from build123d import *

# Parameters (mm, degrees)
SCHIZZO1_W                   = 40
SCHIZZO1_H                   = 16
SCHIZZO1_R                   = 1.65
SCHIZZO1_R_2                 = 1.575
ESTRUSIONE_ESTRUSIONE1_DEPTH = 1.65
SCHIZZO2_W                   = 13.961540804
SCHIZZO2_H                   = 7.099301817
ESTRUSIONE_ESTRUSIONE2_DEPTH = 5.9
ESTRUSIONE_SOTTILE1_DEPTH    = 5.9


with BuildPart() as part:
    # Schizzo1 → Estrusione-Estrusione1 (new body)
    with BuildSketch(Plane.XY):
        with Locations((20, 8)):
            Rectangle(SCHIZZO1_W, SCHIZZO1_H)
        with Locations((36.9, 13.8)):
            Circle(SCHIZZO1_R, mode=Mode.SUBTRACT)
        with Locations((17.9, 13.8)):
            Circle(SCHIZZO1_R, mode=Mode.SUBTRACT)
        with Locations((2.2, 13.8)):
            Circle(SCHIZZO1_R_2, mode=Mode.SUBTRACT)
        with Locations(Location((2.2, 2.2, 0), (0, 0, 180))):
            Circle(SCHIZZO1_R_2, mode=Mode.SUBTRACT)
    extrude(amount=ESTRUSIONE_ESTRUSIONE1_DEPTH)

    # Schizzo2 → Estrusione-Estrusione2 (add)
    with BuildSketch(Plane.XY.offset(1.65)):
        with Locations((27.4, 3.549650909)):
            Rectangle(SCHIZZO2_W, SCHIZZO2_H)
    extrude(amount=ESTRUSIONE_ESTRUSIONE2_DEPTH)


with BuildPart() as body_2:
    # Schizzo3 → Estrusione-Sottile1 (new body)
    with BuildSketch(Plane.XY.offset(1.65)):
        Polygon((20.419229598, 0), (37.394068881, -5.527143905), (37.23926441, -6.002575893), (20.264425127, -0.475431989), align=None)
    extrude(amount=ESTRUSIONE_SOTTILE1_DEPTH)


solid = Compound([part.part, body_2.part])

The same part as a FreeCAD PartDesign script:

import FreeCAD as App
import Part
import Sketcher

V = App.Vector
Q = App.Units.Quantity

doc = App.newDocument("Part")
params = doc.addObject("Spreadsheet::Sheet", "Params")
for row, (alias, value) in enumerate([
    ("sketch1_diameter", "3.3 mm"),
    ("sketch1_diameter2", "3.15 mm"),
    ("sketch1_width", "40 mm"),
    ("sketch1_height", "16 mm"),
    ("pad1_length", "1.65 mm"),
    ("pad2_length", "5.9 mm"),
    ("sketch3_length", "0.5 mm"),
    ("pad3_length", "5.9 mm"),
], start=1):
    params.set(f"A{row}", alias)
    params.set(f"B{row}", "=" + value)
    params.setAlias(f"B{row}", alias)

body = doc.addObject("PartDesign::Body", "Body")

sketch1 = doc.addObject("Sketcher::SketchObject", "Sketch")
body.addObject(sketch1)
sketch1.AttachmentSupport = (doc.XY_Plane, [""])
sketch1.MapMode = "FlatFace"
sketch1.addGeometry([
    Part.LineSegment(V(0, 16, 0), V(0, 0, 0)),
    Part.LineSegment(V(0, 0, 0), V(40, 0, 0)),
    Part.LineSegment(V(40, 0, 0), V(40, 16, 0)),
    Part.LineSegment(V(40, 16, 0), V(0, 16, 0)),
    Part.Circle(V(2.2, 2.2, 0), V(0, 0, 1), 1.6),
    Part.Circle(V(2.2, 13.8, 0), V(0, 0, 1), 1.6),
    Part.Circle(V(17.9, 13.8, 0), V(0, 0, 1), 1.6),
    Part.Circle(V(36.9, 13.8, 0), V(0, 0, 1), 1.6),
], False)
sketch1.addConstraint([
    Sketcher.Constraint("Coincident", 0, 2, 1, 1),
    Sketcher.Constraint("Coincident", 1, 2, 2, 1),
    Sketcher.Constraint("Coincident", 2, 2, 3, 1),
    Sketcher.Constraint("Coincident", 3, 2, 0, 1),
    Sketcher.Constraint("Vertical", 0),
    Sketcher.Constraint("Horizontal", 1),
    Sketcher.Constraint("Vertical", 2),
    Sketcher.Constraint("Horizontal", 3),
    Sketcher.Constraint("Coincident", 0, 2, -1, 1),
    Sketcher.Constraint("Equal", 4, 5),
    Sketcher.Constraint("Equal", 6, 7),
    Sketcher.Constraint("Horizontal", 5, 3, 6, 3),
    Sketcher.Constraint("Horizontal", 6, 3, 7, 3),
    Sketcher.Constraint("Vertical", 4, 3, 5, 3),
    Sketcher.Constraint("Diameter", 6, Q("3.3 mm")),
    Sketcher.Constraint("Diameter", 4, Q("3.15 mm")),
    Sketcher.Constraint("DistanceX", 1, 1, 1, 2, Q("40 mm")),
    Sketcher.Constraint("DistanceY", 0, 2, 0, 1, Q("16 mm")),
    Sketcher.Constraint("DistanceX", 6, 3, 7, 3, Q("19 mm")),
    Sketcher.Constraint("DistanceX", -1, 1, 4, 3, Q("2.2 mm")),
    Sketcher.Constraint("DistanceY", -1, 1, 4, 3, Q("2.2 mm")),
    Sketcher.Constraint("DistanceY", -1, 1, 5, 3, Q("13.8 mm")),
    Sketcher.Constraint("DistanceX", -1, 1, 6, 3, Q("17.9 mm")),
])
sketch1.setExpression("Constraints[14]", "Params.sketch1_diameter")
sketch1.setExpression("Constraints[15]", "Params.sketch1_diameter2")
sketch1.setExpression("Constraints[16]", "Params.sketch1_width")
sketch1.setExpression("Constraints[17]", "Params.sketch1_height")
pad1 = doc.addObject("PartDesign::Pad", "Pad")
body.addObject(pad1)
pad1.Profile = sketch1
pad1.setExpression("Length", "Params.pad1_length")

sketch2 = doc.addObject("Sketcher::SketchObject", "Sketch001")
body.addObject(sketch2)
sketch2.AttachmentSupport = (doc.XY_Plane, [""])
sketch2.MapMode = "FlatFace"
sketch2.AttachmentOffset = App.Placement(V(0, 0, 1.65), App.Rotation())
sketch2.addGeometry([
    Part.LineSegment(V(20, 7, 0), V(20, 0, 0)),
    Part.LineSegment(V(20, 0, 0), V(34, 0, 0)),
    Part.LineSegment(V(34, 0, 0), V(34, 7, 0)),
    Part.LineSegment(V(34, 7, 0), V(20, 7, 0)),
], False)
sketch2.addConstraint([
    Sketcher.Constraint("Coincident", 0, 2, 1, 1),
    Sketcher.Constraint("Coincident", 1, 2, 2, 1),
    Sketcher.Constraint("Coincident", 2, 2, 3, 1),
    Sketcher.Constraint("Coincident", 3, 2, 0, 1),
    Sketcher.Constraint("Vertical", 0),
    Sketcher.Constraint("Horizontal", 1),
    Sketcher.Constraint("Vertical", 2),
    Sketcher.Constraint("Horizontal", 3),
    Sketcher.Constraint("PointOnObject", 0, 2, -1),
    Sketcher.Constraint("DistanceY", 0, 2, 0, 1, Q("7.099302 mm")),
    Sketcher.Constraint("DistanceX", 1, 1, 1, 2, Q("13.961541 mm")),
    Sketcher.Constraint("DistanceX", -1, 1, 0, 2, Q("20.41923 mm")),
])
pad2 = doc.addObject("PartDesign::Pad", "Pad001")
body.addObject(pad2)
pad2.Profile = sketch2
pad2.setExpression("Length", "Params.pad2_length")
body2 = doc.addObject("PartDesign::Body", "Body001")

sketch3 = doc.addObject("Sketcher::SketchObject", "Sketch002")
body2.addObject(sketch3)
sketch3.AttachmentSupport = (doc.getObject("XY_Plane001"), [""])
sketch3.MapMode = "FlatFace"
sketch3.AttachmentOffset = App.Placement(V(0, 0, 1.65), App.Rotation())
sketch3.addGeometry([
    Part.LineSegment(V(37.39, -5.53, 0), V(20.42, 0, 0)),
    Part.LineSegment(V(20.42, 0, 0), V(20.26, -0.48, 0)),
    Part.LineSegment(V(20.26, -0.48, 0), V(37.24, -6, 0)),
    Part.LineSegment(V(37.24, -6, 0), V(37.39, -5.53, 0)),
], False)
sketch3.addConstraint([
    Sketcher.Constraint("Coincident", 0, 2, 1, 1),
    Sketcher.Constraint("Coincident", 1, 2, 2, 1),
    Sketcher.Constraint("Coincident", 2, 2, 3, 1),
    Sketcher.Constraint("Coincident", 3, 2, 0, 1),
    Sketcher.Constraint("PointOnObject", 0, 2, -1),
    Sketcher.Constraint("Perpendicular", 0, 1),
    Sketcher.Constraint("Perpendicular", 1, 2),
    Sketcher.Constraint("Perpendicular", 2, 3),
    Sketcher.Constraint("Distance", 1, Q("0.5 mm")),
    Sketcher.Constraint("DistanceX", -1, 1, 0, 2, Q("20.41923 mm")),
    Sketcher.Constraint("DistanceY", 1, 2, -1, 1, Q("0.475432 mm")),
    Sketcher.Constraint("DistanceX", -1, 1, 3, 2, Q("37.394069 mm")),
])
sketch3.setExpression("Constraints[8]", "Params.sketch3_length")
pad3 = doc.addObject("PartDesign::Pad", "Pad002")
body2.addObject(pad3)
pad3.Profile = sketch3
pad3.setExpression("Length", "Params.pad3_length")

doc.recompute()
